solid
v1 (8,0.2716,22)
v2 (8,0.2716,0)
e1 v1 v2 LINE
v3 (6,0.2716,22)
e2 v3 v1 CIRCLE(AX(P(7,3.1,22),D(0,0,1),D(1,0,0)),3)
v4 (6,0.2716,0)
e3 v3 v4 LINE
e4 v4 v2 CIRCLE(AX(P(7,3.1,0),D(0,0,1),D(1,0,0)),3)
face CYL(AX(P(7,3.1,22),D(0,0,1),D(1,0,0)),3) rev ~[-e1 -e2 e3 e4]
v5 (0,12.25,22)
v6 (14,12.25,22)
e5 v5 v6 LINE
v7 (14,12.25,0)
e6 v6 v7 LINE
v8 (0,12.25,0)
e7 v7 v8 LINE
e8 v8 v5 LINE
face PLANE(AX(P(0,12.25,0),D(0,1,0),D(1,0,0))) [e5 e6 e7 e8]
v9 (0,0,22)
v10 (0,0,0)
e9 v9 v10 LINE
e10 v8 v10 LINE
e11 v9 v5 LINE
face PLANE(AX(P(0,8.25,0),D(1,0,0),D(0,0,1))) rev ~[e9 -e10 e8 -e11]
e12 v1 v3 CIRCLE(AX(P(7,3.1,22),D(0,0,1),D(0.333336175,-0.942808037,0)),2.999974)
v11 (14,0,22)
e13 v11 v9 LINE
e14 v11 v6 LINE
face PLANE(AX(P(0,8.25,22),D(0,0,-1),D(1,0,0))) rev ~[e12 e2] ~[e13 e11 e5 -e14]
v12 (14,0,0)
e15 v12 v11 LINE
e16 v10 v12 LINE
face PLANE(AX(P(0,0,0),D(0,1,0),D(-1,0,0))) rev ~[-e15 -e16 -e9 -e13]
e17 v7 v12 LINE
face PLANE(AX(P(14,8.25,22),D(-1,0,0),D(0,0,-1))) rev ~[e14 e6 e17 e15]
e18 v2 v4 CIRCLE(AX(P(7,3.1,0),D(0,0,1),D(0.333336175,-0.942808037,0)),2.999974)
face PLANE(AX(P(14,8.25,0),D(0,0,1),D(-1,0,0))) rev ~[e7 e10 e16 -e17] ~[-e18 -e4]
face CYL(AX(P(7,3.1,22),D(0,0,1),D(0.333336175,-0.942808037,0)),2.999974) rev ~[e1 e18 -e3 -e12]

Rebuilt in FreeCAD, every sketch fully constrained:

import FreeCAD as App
import Part
import Sketcher
from FreeCAD import Vector
Q = App.Units.Quantity


def add_polygon(sketch, points):
    """Adds a closed chain of lines whose ends are joined by coincident constraints."""
    first, n = sketch.GeometryCount, len(points)
    for a, b in zip(points, points[1:] + points[:1]):
        sketch.addGeometry(Part.LineSegment(App.Vector(*a, 0), App.Vector(*b, 0)), False)
    for i in range(n):
        sketch.addConstraint(Sketcher.Constraint("Coincident", first + i, 2, first + (i + 1) % n, 1))

doc = App.newDocument("Part")
body = doc.addObject("PartDesign::Body", "Body")

sketch1 = body.newObject("Sketcher::SketchObject", "Sketch")
sketch1.AttachmentSupport = (doc.getObject("XZ_Plane"), [""])
sketch1.MapMode = "FlatFace"
add_polygon(sketch1, [(14, 0), (0, 0), (0, 22), (14, 22)])
sketch1.addConstraint(Sketcher.Constraint("Horizontal", 0))
sketch1.addConstraint(Sketcher.Constraint("Vertical", 1))
sketch1.addConstraint(Sketcher.Constraint("Horizontal", 2))
sketch1.addConstraint(Sketcher.Constraint("Vertical", 3))
sketch1.addConstraint(Sketcher.Constraint("Coincident", 0, 2, -1, 1))
sketch1.addConstraint(Sketcher.Constraint("DistanceX", 0, 2, 0, 1, Q("14 mm")))
sketch1.addConstraint(Sketcher.Constraint("DistanceY", 1, 1, 1, 2, Q("22 mm")))
pad1 = body.newObject("PartDesign::Pad", "Pad")
pad1.Profile = sketch1
pad1.Length = 8.25
pad1.Reversed = True

sketch2 = body.newObject("Sketcher::SketchObject", "Sketch001")
sketch2.AttachmentSupport = (doc.getObject("XY_Plane"), [""])
sketch2.MapMode = "FlatFace"
sketch2.AttachmentOffset = App.Placement(Vector(0, 0, 22), App.Rotation())
sketch2.addGeometry(Part.Circle(Vector(7, 3.1, 0), Vector(0, 0, 1), 2.999974), False)
sketch2.addConstraint(Sketcher.Constraint("Diameter", 0, Q("6 mm")))
sketch2.addConstraint(Sketcher.Constraint("DistanceX", -1, 1, 0, 3, Q("7 mm")))
sketch2.addConstraint(Sketcher.Constraint("DistanceY", -1, 1, 0, 3, Q("3.1 mm")))
pocket1 = body.newObject("PartDesign::Pocket", "Pocket")
pocket1.Profile = sketch2
pocket1.Type = "ThroughAll"

sketch3 = body.newObject("Sketcher::SketchObject", "Sketch002")
sketch3.AttachmentSupport = (doc.getObject("XZ_Plane"), [""])
sketch3.MapMode = "FlatFace"
sketch3.AttachmentOffset = App.Placement(Vector(0, 0, -8.25), App.Rotation())
add_polygon(sketch3, [(0, 0), (0, 22), (14, 22), (14, 0)])
sketch3.addConstraint(Sketcher.Constraint("Vertical", 0))
sketch3.addConstraint(Sketcher.Constraint("Horizontal", 1))
sketch3.addConstraint(Sketcher.Constraint("Vertical", 2))
sketch3.addConstraint(Sketcher.Constraint("Horizontal", 3))
sketch3.addConstraint(Sketcher.Constraint("Coincident", 3, 2, -1, 1))
sketch3.addConstraint(Sketcher.Constraint("DistanceX", 1, 1, 1, 2, Q("14 mm")))
sketch3.addConstraint(Sketcher.Constraint("DistanceY", 0, 1, 0, 2, Q("22 mm")))
pad2 = body.newObject("PartDesign::Pad", "Pad001")
pad2.Profile = sketch3
pad2.Length = 4
pad2.Reversed = True

doc.recompute()
